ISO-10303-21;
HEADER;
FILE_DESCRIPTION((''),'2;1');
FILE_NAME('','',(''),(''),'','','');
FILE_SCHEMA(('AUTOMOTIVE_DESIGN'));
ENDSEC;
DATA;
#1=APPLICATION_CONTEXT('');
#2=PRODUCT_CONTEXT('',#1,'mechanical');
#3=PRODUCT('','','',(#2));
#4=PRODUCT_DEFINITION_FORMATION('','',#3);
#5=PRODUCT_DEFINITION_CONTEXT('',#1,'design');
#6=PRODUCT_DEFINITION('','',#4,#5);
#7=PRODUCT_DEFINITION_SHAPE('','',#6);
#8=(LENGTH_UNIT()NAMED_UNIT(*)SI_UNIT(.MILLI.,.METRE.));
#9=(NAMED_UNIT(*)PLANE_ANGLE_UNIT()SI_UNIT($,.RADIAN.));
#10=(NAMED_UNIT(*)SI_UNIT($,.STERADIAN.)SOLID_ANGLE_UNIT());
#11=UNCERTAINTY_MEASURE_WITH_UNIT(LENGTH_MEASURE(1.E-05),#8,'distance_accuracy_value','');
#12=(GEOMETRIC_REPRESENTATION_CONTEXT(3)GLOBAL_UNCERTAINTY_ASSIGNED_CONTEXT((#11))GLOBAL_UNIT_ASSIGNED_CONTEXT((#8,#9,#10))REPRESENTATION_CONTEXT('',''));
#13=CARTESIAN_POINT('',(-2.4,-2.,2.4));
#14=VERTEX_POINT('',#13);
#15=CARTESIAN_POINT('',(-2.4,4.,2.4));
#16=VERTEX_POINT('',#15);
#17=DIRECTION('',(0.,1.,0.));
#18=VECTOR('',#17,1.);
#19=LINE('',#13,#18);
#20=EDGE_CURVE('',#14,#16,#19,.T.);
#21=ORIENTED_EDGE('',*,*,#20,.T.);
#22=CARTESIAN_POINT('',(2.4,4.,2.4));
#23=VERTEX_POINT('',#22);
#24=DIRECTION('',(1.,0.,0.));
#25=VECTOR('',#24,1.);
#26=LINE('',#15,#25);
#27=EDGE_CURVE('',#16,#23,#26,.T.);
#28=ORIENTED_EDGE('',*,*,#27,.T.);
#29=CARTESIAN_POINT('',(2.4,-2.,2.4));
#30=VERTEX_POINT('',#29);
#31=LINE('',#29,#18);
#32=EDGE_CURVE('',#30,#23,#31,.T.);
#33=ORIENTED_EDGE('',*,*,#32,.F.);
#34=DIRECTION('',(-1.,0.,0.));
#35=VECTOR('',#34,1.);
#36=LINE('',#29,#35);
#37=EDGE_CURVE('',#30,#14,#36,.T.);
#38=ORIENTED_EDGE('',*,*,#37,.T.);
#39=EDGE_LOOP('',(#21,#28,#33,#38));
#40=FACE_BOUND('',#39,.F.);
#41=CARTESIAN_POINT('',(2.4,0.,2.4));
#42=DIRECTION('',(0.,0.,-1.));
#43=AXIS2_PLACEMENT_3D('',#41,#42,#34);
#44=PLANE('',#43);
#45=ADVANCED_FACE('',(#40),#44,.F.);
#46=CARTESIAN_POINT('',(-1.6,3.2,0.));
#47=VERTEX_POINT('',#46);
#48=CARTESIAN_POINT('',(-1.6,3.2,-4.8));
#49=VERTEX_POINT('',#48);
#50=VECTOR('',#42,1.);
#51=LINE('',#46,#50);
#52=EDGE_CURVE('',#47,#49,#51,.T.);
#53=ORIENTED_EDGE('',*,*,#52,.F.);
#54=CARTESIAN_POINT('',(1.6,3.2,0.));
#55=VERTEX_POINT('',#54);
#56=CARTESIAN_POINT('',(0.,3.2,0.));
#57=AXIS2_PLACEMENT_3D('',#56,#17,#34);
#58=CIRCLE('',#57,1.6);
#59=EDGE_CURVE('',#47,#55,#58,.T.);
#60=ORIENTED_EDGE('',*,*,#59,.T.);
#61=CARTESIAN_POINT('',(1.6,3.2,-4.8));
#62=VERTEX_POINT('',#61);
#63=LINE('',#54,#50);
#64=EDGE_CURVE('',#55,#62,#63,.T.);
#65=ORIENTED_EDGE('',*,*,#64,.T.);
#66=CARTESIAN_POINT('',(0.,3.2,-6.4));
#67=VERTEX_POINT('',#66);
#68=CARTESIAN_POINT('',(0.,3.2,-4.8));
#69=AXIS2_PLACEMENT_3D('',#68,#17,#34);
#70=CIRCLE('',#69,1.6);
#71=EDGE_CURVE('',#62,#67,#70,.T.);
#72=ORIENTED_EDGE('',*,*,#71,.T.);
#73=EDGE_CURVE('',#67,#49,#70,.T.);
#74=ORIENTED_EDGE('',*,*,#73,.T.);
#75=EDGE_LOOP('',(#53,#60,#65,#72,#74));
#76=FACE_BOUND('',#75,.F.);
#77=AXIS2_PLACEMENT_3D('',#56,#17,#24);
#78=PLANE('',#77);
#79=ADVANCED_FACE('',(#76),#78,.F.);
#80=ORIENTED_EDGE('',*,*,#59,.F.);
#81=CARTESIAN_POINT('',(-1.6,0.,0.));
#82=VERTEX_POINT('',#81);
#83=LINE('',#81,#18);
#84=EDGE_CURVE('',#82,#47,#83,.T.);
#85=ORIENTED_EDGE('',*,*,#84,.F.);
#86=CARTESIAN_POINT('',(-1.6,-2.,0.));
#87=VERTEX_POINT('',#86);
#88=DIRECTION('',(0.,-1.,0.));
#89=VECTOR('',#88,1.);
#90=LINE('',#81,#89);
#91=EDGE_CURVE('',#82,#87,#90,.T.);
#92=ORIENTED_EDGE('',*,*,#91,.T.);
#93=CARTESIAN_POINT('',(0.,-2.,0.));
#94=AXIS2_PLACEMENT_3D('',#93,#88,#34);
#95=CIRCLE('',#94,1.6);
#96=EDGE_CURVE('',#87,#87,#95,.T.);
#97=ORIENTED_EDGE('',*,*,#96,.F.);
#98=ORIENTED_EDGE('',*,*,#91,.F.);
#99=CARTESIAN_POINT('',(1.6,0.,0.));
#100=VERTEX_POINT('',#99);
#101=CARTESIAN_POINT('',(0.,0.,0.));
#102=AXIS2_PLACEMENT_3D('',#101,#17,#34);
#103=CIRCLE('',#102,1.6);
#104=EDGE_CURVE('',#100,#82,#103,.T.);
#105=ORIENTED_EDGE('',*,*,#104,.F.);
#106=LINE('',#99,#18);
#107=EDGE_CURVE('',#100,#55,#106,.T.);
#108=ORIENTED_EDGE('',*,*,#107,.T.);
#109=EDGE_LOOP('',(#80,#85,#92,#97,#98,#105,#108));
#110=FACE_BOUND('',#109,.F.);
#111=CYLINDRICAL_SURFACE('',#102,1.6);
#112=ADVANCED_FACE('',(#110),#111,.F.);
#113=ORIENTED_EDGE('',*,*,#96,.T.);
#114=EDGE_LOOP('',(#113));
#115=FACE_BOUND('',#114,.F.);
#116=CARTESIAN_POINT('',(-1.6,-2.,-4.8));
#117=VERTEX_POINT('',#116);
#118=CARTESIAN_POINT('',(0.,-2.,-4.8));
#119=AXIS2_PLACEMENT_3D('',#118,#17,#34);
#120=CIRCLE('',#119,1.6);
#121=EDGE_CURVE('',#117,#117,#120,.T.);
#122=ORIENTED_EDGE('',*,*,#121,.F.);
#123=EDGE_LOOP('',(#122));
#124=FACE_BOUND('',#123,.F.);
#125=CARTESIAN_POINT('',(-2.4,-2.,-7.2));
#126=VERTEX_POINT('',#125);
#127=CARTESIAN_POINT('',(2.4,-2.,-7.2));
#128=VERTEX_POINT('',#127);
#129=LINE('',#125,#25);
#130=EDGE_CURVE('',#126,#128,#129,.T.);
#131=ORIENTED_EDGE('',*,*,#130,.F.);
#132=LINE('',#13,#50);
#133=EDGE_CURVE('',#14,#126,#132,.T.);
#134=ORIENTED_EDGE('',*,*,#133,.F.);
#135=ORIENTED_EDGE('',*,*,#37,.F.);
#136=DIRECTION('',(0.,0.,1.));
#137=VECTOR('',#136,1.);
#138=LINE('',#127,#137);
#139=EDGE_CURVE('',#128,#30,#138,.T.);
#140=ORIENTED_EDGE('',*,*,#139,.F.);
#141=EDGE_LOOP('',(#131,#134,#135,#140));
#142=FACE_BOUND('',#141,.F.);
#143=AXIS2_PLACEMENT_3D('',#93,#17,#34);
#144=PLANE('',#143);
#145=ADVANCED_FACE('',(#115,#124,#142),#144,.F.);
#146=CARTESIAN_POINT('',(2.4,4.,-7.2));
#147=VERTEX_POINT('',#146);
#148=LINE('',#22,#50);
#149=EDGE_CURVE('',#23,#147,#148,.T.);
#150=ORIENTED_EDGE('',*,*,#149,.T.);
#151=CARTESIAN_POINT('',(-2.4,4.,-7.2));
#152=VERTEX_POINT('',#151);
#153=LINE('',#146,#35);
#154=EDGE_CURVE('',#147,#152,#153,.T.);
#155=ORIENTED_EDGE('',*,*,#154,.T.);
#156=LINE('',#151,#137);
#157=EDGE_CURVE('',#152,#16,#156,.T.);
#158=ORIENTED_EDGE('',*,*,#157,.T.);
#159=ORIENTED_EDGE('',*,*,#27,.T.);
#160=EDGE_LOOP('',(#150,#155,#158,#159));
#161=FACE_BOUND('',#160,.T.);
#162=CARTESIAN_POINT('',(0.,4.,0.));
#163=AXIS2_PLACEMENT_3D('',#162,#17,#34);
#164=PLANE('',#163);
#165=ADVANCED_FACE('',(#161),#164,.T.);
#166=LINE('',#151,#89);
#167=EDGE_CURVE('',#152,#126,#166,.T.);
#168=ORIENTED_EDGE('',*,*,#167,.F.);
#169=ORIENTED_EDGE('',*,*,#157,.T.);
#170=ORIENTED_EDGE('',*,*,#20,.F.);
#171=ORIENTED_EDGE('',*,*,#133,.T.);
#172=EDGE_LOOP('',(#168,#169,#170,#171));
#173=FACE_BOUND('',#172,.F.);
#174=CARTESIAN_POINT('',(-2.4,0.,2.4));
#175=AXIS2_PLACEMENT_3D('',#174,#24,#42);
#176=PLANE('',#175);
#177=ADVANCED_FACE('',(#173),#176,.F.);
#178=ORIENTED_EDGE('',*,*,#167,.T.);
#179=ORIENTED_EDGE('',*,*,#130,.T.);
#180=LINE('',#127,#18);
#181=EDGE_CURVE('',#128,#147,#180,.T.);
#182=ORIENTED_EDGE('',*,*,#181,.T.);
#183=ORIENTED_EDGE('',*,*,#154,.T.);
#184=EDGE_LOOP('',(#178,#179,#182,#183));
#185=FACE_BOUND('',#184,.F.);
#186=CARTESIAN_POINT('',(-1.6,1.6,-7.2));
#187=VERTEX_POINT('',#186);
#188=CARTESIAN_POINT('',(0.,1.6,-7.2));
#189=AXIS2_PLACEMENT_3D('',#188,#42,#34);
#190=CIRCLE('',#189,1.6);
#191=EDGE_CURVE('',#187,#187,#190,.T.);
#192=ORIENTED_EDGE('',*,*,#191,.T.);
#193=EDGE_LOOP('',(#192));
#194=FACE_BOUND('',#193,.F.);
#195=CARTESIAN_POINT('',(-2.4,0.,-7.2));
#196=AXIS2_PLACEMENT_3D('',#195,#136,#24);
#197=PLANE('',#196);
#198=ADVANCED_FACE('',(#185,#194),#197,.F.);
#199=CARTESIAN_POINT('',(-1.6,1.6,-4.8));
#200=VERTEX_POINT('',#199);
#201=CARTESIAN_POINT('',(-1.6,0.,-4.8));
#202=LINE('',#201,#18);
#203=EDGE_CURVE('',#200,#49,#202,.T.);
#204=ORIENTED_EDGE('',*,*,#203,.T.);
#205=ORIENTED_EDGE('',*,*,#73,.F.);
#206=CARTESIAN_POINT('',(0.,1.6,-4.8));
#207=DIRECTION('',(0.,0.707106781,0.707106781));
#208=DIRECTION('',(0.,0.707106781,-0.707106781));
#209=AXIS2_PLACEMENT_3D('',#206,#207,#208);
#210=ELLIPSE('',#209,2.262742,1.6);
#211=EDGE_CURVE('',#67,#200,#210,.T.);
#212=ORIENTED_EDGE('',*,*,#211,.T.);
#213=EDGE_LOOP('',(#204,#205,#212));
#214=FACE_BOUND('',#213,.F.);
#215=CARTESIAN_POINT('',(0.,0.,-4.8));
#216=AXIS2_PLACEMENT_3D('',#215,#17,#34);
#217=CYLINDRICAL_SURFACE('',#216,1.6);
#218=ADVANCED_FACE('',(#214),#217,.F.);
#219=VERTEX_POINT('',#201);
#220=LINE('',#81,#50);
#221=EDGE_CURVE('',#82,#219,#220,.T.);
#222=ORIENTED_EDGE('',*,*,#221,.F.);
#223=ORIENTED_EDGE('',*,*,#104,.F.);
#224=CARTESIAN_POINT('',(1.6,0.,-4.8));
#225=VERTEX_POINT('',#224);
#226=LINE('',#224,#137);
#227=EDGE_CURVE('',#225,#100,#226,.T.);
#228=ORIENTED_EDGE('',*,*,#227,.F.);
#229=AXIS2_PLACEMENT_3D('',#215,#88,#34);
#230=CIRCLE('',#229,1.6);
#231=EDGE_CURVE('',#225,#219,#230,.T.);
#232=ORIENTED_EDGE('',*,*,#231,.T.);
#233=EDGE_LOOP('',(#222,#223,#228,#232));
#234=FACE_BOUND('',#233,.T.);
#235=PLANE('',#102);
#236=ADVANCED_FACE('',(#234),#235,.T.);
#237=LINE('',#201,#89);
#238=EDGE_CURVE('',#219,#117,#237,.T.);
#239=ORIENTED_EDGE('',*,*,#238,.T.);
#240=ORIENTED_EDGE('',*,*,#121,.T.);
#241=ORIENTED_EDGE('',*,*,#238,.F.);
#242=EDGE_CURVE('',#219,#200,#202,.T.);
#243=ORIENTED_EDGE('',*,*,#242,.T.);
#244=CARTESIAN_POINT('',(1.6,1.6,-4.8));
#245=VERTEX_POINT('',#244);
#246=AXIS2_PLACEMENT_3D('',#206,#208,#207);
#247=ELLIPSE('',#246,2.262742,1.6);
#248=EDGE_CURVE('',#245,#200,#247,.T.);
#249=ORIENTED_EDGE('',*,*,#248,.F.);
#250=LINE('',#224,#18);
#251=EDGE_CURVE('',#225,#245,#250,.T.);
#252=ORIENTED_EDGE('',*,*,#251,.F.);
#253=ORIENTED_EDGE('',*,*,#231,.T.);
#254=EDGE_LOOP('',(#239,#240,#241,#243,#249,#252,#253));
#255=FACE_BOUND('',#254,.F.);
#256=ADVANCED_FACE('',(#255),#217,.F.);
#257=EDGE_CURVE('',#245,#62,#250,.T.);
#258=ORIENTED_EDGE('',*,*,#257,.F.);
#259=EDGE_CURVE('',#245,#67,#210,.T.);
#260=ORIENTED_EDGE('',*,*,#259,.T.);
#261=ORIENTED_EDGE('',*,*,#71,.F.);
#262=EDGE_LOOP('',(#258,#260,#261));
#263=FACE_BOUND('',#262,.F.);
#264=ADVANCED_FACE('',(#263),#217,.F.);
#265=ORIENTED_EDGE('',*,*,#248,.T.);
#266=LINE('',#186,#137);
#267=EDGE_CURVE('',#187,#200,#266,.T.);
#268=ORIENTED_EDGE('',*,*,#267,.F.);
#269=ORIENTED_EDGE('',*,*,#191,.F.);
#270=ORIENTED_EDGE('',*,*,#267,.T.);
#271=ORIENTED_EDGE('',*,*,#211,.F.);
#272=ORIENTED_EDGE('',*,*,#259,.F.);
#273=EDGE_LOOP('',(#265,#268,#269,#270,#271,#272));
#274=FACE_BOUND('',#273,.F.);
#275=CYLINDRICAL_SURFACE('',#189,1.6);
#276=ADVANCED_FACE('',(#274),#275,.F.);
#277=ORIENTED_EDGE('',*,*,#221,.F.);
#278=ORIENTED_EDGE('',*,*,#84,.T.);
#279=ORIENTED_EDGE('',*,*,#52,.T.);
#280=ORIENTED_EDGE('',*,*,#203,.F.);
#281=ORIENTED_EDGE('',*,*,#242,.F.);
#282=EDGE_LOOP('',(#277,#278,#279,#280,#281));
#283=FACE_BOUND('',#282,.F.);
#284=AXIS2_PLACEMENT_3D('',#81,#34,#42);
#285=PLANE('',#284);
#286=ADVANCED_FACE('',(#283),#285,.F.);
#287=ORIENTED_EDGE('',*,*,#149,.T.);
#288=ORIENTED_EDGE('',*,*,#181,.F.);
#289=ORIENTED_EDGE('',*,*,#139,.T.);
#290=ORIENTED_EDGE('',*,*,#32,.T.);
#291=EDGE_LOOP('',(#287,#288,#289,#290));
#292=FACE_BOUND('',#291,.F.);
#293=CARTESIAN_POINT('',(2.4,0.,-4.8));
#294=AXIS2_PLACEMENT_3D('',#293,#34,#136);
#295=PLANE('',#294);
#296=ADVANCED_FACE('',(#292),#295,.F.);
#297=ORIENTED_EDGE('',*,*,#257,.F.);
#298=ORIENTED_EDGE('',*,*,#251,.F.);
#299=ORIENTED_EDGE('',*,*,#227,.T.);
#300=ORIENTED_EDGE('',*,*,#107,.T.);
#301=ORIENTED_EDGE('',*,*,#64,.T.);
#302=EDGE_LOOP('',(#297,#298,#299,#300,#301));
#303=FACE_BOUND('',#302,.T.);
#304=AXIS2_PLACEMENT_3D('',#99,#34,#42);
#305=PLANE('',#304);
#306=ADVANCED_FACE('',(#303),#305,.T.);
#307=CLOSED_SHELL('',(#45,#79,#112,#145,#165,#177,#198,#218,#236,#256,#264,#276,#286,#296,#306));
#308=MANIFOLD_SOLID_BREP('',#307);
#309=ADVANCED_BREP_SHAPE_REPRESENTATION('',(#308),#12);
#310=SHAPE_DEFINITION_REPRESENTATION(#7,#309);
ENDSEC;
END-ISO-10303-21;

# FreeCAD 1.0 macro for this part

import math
import FreeCAD as App
import Part
import Sketcher

V = App.Vector
Q = App.Units.Quantity


def add_polygon(sketch, points):
    """Adds a closed chain of lines whose ends are joined by coincident constraints."""
    first, n = sketch.GeometryCount, len(points)
    for a, b in zip(points, points[1:] + points[:1]):
        sketch.addGeometry(Part.LineSegment(App.Vector(*a, 0), App.Vector(*b, 0)), False)
    for i in range(n):
        sketch.addConstraint(Sketcher.Constraint("Coincident", first + i, 2, first + (i + 1) % n, 1))

doc = App.newDocument("Part")
params = doc.addObject("Spreadsheet::Sheet", "Params")
for row, (alias, value) in enumerate([
    ("sketch1_diameter", "3.2 mm"),
    ("sketch1_width", "4.8 mm"),
    ("sketch1_height", "9.6 mm"),
    ("pad1_length", "2 mm"),
    ("sketch2_radius", "1.6 mm"),
    ("sketch2_width", "4.8 mm"),
    ("sketch2_height", "9.6 mm"),
    ("pad2_length", "4 mm"),
    ("sketch3_width", "4.8 mm"),
    ("sketch3_height", "9.6 mm"),
    ("pad3_length", "0.8 mm"),
    ("sketch4_diameter", "3.2 mm"),
    ("pocket1_length", "3.3 mm"),
], start=1):
    params.set(f"A{row}", alias)
    params.set(f"B{row}", "=" + value)
    params.setAlias(f"B{row}", alias)

body = doc.addObject("PartDesign::Body", "Body")

sketch1 = body.newObject("Sketcher::SketchObject", "Sketch")
sketch1.AttachmentSupport = (doc.getObject("XZ_Plane"), [""])
sketch1.MapMode = "FlatFace"
add_polygon(sketch1, [(-2.4, 2.4), (2.4, 2.4), (2.4, -7.2), (-2.4, -7.2)])
sketch1.addGeometry(Part.Circle(V(0, 0, 0), V(0, 0, 1), 1.6), False)
sketch1.addGeometry(Part.Circle(V(0, -4.8, 0), V(0, 0, 1), 1.6), False)
sketch1.addConstraint(Sketcher.Constraint("Horizontal", 0))
sketch1.addConstraint(Sketcher.Constraint("Vertical", 1))
sketch1.addConstraint(Sketcher.Constraint("Horizontal", 2))
sketch1.addConstraint(Sketcher.Constraint("Vertical", 3))
sketch1.addConstraint(Sketcher.Constraint("Coincident", 4, 3, -1, 1))
sketch1.addConstraint(Sketcher.Constraint("Equal", 4, 5))
sketch1.addConstraint(Sketcher.Constraint("PointOnObject", 5, 3, -2))
sketch1.addConstraint(Sketcher.Constraint("Diameter", 4, Q("3.2 mm")))
sketch1.addConstraint(Sketcher.Constraint("DistanceX", 0, 1, 0, 2, Q("4.8 mm")))
sketch1.addConstraint(Sketcher.Constraint("DistanceY", 5, 3, -1, 1, Q("4.8 mm")))
sketch1.addConstraint(Sketcher.Constraint("DistanceY", 1, 2, 1, 1, Q("9.6 mm")))
sketch1.addConstraint(Sketcher.Constraint("DistanceX", -1, 1, 0, 2, Q("2.4 mm")))
sketch1.addConstraint(Sketcher.Constraint("DistanceY", -1, 1, 0, 2, Q("2.4 mm")))
sketch1.setExpression("Constraints[11]", "Params.sketch1_diameter")
sketch1.setExpression("Constraints[12]", "Params.sketch1_width")
sketch1.setExpression("Constraints[14]", "Params.sketch1_height")
pad1 = body.newObject("PartDesign::Pad", "Pad")
pad1.Profile = sketch1
pad1.setExpression("Length", "Params.pad1_length")

sketch2 = body.newObject("Sketcher::SketchObject", "Sketch001")
sketch2.AttachmentSupport = (doc.getObject("XZ_Plane"), [""])
sketch2.MapMode = "FlatFace"
add_polygon(sketch2, [(2.4, -7.2), (-2.4, -7.2), (-2.4, 2.4), (2.4, 2.4)])
sketch2.addGeometry(Part.ArcOfCircle(Part.Circle(V(0, 0, 0), V(0, 0, 1), 1.6), math.radians(0), math.radians(180)), False)
sketch2.addGeometry(Part.LineSegment(V(-1.6, 0, 0), V(-1.6, -4.8, 0)), False)
sketch2.addGeometry(Part.ArcOfCircle(Part.Circle(V(0, -4.8, 0), V(0, 0, 1), 1.6), math.radians(180), math.radians(360)), False)
sketch2.addGeometry(Part.LineSegment(V(1.6, -4.8, 0), V(1.6, 0, 0)), False)
sketch2.addConstraint(Sketcher.Constraint("Tangent", 4, 2, 5, 1))
sketch2.addConstraint(Sketcher.Constraint("Tangent", 5, 2, 6, 1))
sketch2.addConstraint(Sketcher.Constraint("Tangent", 6, 2, 7, 1))
sketch2.addConstraint(Sketcher.Constraint("Tangent", 7, 2, 4, 1))
sketch2.addConstraint(Sketcher.Constraint("Horizontal", 0))
sketch2.addConstraint(Sketcher.Constraint("Vertical", 1))
sketch2.addConstraint(Sketcher.Constraint("Horizontal", 2))
sketch2.addConstraint(Sketcher.Constraint("Vertical", 3))
sketch2.addConstraint(Sketcher.Constraint("Vertical", 5))
sketch2.addConstraint(Sketcher.Constraint("Vertical", 7))
sketch2.addConstraint(Sketcher.Constraint("Coincident", 4, 3, -1, 1))
sketch2.addConstraint(Sketcher.Constraint("Equal", 2, 5))
sketch2.addConstraint(Sketcher.Constraint("Radius", 4, Q("1.6 mm")))
sketch2.addConstraint(Sketcher.Constraint("DistanceX", 0, 2, 0, 1, Q("4.8 mm")))
sketch2.addConstraint(Sketcher.Constraint("DistanceY", 1, 1, 1, 2, Q("9.6 mm")))
sketch2.addConstraint(Sketcher.Constraint("DistanceX", 4, 2, 2, 2, Q("4 mm")))
sketch2.addConstraint(Sketcher.Constraint("DistanceY", 0, 2, -1, 1, Q("7.2 mm")))
sketch2.setExpression("Constraints[16]", "Params.sketch2_radius")
sketch2.setExpression("Constraints[17]", "Params.sketch2_width")
sketch2.setExpression("Constraints[18]", "Params.sketch2_height")
pad2 = body.newObject("PartDesign::Pad", "Pad001")
pad2.Profile = sketch2
pad2.setExpression("Length", "Params.pad2_length")
pad2.Reversed = True

sketch3 = body.newObject("Sketcher::SketchObject", "Sketch002")
sketch3.AttachmentSupport = (doc.getObject("XZ_Plane"), [""])
sketch3.MapMode = "FlatFace"
sketch3.AttachmentOffset = App.Placement(V(0, 0, -4), App.Rotation())
add_polygon(sketch3, [(-2.4, -7.2), (-2.4, 2.4), (2.4, 2.4), (2.4, -7.2)])
sketch3.addConstraint(Sketcher.Constraint("Vertical", 0))
sketch3.addConstraint(Sketcher.Constraint("Horizontal", 1))
sketch3.addConstraint(Sketcher.Constraint("Vertical", 2))
sketch3.addConstraint(Sketcher.Constraint("Horizontal", 3))
sketch3.addConstraint(Sketcher.Constraint("DistanceX", 1, 1, 1, 2, Q("4.8 mm")))
sketch3.addConstraint(Sketcher.Constraint("DistanceY", 0, 1, 0, 2, Q("9.6 mm")))
sketch3.addConstraint(Sketcher.Constraint("DistanceX", 0, 2, -1, 1, Q("2.4 mm")))
sketch3.addConstraint(Sketcher.Constraint("DistanceY", -1, 1, 0, 2, Q("2.4 mm")))
sketch3.setExpression("Constraints[8]", "Params.sketch3_width")
sketch3.setExpression("Constraints[9]", "Params.sketch3_height")
pad3 = body.newObject("PartDesign::Pad", "Pad002")
pad3.Profile = sketch3
pad3.setExpression("Length", "Params.pad3_length")

sketch4 = body.newObject("Sketcher::SketchObject", "Sketch003")
sketch4.AttachmentSupport = (doc.getObject("XY_Plane"), [""])
sketch4.MapMode = "FlatFace"
sketch4.AttachmentOffset = App.Placement(V(0, 0, -7.2), App.Rotation())
sketch4.addGeometry(Part.Circle(V(0, 1.6, 0), V(0, 0, 1), 1.6), False)
sketch4.addConstraint(Sketcher.Constraint("PointOnObject", 0, 3, -2))
sketch4.addConstraint(Sketcher.Constraint("Diameter", 0, Q("3.2 mm")))
sketch4.addConstraint(Sketcher.Constraint("DistanceY", -1, 1, 0, 3, Q("1.6 mm")))
sketch4.setExpression("Constraints[1]", "Params.sketch4_diameter")
pocket1 = body.newObject("PartDesign::Pocket", "Pocket")
pocket1.Profile = sketch4
pocket1.setExpression("Length", "Params.pocket1_length")
pocket1.Reversed = True

doc.recompute()
